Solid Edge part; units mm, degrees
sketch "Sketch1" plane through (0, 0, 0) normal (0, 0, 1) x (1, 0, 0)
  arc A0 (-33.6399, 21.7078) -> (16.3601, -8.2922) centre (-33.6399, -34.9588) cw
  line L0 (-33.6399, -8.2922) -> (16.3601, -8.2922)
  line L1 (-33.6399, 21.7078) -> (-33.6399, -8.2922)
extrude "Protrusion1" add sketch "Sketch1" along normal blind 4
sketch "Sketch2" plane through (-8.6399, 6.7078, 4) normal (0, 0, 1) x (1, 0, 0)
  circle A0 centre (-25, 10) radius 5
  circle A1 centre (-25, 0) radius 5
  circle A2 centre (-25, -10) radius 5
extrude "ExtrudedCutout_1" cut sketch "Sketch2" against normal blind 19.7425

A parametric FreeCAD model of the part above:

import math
import FreeCAD as App
import Part
import Sketcher
from FreeCAD import Vector
Q = App.Units.Quantity

doc = App.newDocument("Part")
body = doc.addObject("PartDesign::Body", "Body")

sketch1 = body.newObject("Sketcher::SketchObject", "Sketch")
sketch1.AttachmentSupport = (doc.getObject("XY_Plane"), [""])
sketch1.MapMode = "FlatFace"
sketch1.addGeometry(Part.ArcOfCircle(Part.Circle(Vector(-33.6399, -34.9588, 0), Vector(0, 0, 1), 56.6666), math.radians(28.072427), math.radians(90)), False)
sketch1.addGeometry(Part.LineSegment(Vector(-33.6399, 21.7078, 0), Vector(-33.6399, -8.2922, 0)), False)
sketch1.addGeometry(Part.LineSegment(Vector(-33.6399, -8.2922, 0), Vector(16.3601, -8.2922, 0)), False)
sketch1.addConstraint(Sketcher.Constraint("Coincident", 0, 2, 1, 1))
sketch1.addConstraint(Sketcher.Constraint("Coincident", 1, 2, 2, 1))
sketch1.addConstraint(Sketcher.Constraint("Coincident", 2, 2, 0, 1))
sketch1.addConstraint(Sketcher.Constraint("Vertical", 1))
sketch1.addConstraint(Sketcher.Constraint("Horizontal", 2))
sketch1.addConstraint(Sketcher.Constraint("DistanceX", 2, 1, 2, 2, Q("50 mm")))
sketch1.addConstraint(Sketcher.Constraint("DistanceY", 1, 2, 1, 1, Q("30 mm")))
sketch1.addConstraint(Sketcher.Constraint("DistanceX", 0, 3, 2, 2, Q("50 mm")))
sketch1.addConstraint(Sketcher.Constraint("DistanceX", 0, 3, -1, 1, Q("33.64 mm")))
sketch1.addConstraint(Sketcher.Constraint("DistanceY", 0, 3, -1, 1, Q("34.9588 mm")))
pad1 = body.newObject("PartDesign::Pad", "Pad")
pad1.Profile = sketch1
pad1.Length = 4

sketch2 = body.newObject("Sketcher::SketchObject", "Sketch001")
sketch2.AttachmentSupport = (doc.getObject("XY_Plane"), [""])
sketch2.MapMode = "FlatFace"
sketch2.AttachmentOffset = App.Placement(Vector(0, 0, 4), App.Rotation())
sketch2.addGeometry(Part.Circle(Vector(-33.6399, 16.7078, 0), Vector(0, 0, 1), 5), False)
sketch2.addGeometry(Part.Circle(Vector(-33.6399, -3.2922, 0), Vector(0, 0, 1), 5), False)
sketch2.addGeometry(Part.ArcOfCircle(Part.Circle(Vector(-33.6399, 6.7078, 0), Vector(0, 0, 1), 5), math.radians(-90), math.radians(90)), False)
sketch2.addGeometry(Part.ArcOfCircle(Part.Circle(Vector(-33.6399, 6.7078, 0), Vector(0, 0, 1), 5), math.radians(90), math.radians(270)), False)
sketch2.addConstraint(Sketcher.Constraint("Tangent", 2, 1, 3, 2))
sketch2.addConstraint(Sketcher.Constraint("Coincident", 3, 1, 2, 2))
sketch2.addConstraint(Sketcher.Constraint("Equal", 0, 1))
sketch2.addConstraint(Sketcher.Constraint("Equal", 1, 2))
sketch2.addConstraint(Sketcher.Constraint("Vertical", 0, 3, 1, 3))
sketch2.addConstraint(Sketcher.Constraint("Vertical", 1, 3, 2, 3))
sketch2.addConstraint(Sketcher.Constraint("Vertical", 3, 3, 2, 1))
sketch2.addConstraint(Sketcher.Constraint("Vertical", 2, 1, 3, 1))
sketch2.addConstraint(Sketcher.Constraint("Diameter", 0, Q("10 mm")))
sketch2.addConstraint(Sketcher.Constraint("DistanceY", 1, 3, 0, 3, Q("20 mm")))
sketch2.addConstraint(Sketcher.Constraint("DistanceY", 2, 3, 0, 3, Q("10 mm")))
sketch2.addConstraint(Sketcher.Constraint("DistanceX", 0, 3, -1, 1, Q("33.64 mm")))
sketch2.addConstraint(Sketcher.Constraint("DistanceY", -1, 1, 0, 3, Q("16.7078 mm")))
pocket1 = body.newObject("PartDesign::Pocket", "Pocket")
pocket1.Profile = sketch2
pocket1.Length = 19.7425

doc.recompute()
